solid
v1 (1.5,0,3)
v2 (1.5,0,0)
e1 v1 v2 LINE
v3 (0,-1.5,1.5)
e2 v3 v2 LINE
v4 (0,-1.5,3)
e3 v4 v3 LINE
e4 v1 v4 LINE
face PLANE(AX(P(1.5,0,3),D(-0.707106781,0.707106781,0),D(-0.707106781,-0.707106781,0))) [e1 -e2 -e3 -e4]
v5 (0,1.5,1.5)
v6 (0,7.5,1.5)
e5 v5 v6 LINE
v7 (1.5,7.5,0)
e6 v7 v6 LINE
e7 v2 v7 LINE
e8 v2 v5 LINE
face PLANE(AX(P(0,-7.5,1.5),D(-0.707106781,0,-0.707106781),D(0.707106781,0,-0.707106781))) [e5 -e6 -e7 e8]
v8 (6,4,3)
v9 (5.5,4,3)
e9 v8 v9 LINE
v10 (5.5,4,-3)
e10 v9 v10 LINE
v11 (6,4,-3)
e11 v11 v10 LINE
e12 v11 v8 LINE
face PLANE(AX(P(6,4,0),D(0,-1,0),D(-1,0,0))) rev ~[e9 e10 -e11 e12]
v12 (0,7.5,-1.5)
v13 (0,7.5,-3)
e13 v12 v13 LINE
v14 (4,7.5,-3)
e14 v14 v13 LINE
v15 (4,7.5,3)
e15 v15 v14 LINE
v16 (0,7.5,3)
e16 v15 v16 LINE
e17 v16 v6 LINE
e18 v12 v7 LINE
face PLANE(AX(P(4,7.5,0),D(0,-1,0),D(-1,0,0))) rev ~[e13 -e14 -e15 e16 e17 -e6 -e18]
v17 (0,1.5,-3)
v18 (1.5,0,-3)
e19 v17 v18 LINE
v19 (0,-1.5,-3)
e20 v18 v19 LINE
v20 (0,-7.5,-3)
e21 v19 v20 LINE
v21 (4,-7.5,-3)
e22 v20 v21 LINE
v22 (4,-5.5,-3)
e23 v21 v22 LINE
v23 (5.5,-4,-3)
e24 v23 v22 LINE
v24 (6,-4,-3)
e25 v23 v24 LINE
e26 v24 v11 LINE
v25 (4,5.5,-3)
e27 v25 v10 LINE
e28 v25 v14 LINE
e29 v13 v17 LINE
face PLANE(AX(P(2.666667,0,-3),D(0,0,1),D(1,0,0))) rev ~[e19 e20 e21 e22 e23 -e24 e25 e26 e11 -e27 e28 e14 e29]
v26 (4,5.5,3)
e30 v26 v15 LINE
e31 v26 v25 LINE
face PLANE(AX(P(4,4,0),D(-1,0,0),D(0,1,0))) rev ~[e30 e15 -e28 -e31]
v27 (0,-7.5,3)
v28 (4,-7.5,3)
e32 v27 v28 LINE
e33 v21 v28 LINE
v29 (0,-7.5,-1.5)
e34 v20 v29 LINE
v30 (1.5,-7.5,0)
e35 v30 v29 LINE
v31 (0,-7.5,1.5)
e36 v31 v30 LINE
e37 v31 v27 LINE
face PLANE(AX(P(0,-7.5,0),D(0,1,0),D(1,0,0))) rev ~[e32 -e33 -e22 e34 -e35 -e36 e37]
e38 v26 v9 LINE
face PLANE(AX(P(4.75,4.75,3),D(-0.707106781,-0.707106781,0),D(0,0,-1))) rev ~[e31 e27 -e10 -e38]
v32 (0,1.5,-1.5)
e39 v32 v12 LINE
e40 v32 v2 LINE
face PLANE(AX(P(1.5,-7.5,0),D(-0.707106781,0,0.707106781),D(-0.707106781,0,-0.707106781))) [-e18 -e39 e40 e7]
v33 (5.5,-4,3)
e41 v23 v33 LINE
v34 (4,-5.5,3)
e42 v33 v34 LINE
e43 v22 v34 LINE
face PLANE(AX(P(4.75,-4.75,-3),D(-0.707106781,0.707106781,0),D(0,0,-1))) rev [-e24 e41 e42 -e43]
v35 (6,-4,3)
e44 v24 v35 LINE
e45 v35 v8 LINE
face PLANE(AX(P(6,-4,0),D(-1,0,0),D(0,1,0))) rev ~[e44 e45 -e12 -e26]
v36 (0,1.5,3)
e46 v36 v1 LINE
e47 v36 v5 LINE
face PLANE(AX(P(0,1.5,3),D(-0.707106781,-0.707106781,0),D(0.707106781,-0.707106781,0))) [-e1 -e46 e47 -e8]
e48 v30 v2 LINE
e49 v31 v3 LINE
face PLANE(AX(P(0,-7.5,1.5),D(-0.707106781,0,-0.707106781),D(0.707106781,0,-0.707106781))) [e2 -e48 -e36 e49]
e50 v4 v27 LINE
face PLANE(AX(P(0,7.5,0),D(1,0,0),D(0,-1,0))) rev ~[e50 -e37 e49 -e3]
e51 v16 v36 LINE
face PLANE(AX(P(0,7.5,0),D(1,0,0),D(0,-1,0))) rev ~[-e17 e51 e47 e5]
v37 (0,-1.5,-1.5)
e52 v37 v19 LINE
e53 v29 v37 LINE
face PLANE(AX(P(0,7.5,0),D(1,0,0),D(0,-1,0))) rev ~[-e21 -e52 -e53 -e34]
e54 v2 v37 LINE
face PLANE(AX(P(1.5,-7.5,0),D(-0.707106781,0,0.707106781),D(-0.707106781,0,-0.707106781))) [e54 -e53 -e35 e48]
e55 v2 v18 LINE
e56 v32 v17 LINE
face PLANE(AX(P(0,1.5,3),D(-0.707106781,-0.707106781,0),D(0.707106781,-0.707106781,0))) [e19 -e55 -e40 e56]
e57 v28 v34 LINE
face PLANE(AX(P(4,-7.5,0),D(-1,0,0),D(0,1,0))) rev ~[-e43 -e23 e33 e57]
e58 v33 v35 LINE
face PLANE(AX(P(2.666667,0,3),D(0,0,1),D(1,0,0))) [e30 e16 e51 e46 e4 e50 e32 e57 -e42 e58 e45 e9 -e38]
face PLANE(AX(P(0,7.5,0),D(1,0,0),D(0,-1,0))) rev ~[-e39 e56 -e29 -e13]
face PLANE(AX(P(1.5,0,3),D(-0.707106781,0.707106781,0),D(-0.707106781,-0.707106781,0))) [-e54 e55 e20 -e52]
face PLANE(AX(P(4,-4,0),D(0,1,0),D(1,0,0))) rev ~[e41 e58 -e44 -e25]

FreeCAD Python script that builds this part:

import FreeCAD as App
import Part
import Sketcher
from FreeCAD import Vector


def edges_at(feature, points):
    """Names of the edges that pass closest to the given points."""
    edges = feature.Shape.Edges
    near = lambda p: min(range(len(edges)), key=lambda i: edges[i].distToShape(Part.Vertex(*p))[0])
    return sorted({f"Edge{near(p) + 1}" for p in points})

doc = App.newDocument("Part")
body = doc.addObject("PartDesign::Body", "Body")

# Sketch on XY plane
sketch1 = doc.addObject("Sketcher::SketchObject", "Sketch")
body.addObject(sketch1)
sketch1.AttachmentSupport = (doc.XY_Plane, [""])
sketch1.MapMode = "FlatFace"
sketch1.addGeometry(Part.LineSegment(Vector(4, 7.5, 0), Vector(0, 7.5, 0)), False)
sketch1.addGeometry(Part.LineSegment(Vector(0, 7.5, 0), Vector(0, -7.5, 0)), False)
sketch1.addGeometry(Part.LineSegment(Vector(0, -7.5, 0), Vector(4, -7.5, 0)), False)
sketch1.addGeometry(Part.LineSegment(Vector(4, -7.5, 0), Vector(4, -4, 0)), False)
sketch1.addGeometry(Part.LineSegment(Vector(4, -4, 0), Vector(6, -4, 0)), False)
sketch1.addGeometry(Part.LineSegment(Vector(6, -4, 0), Vector(6, 4, 0)), False)
sketch1.addGeometry(Part.LineSegment(Vector(6, 4, 0), Vector(4, 4, 0)), False)
sketch1.addGeometry(Part.LineSegment(Vector(4, 4, 0), Vector(4, 7.5, 0)), False)
sketch1.addConstraint(Sketcher.Constraint("Coincident", 0, 2, 1, 1))
sketch1.addConstraint(Sketcher.Constraint("Coincident", 1, 2, 2, 1))
sketch1.addConstraint(Sketcher.Constraint("Coincident", 2, 2, 3, 1))
sketch1.addConstraint(Sketcher.Constraint("Coincident", 3, 2, 4, 1))
sketch1.addConstraint(Sketcher.Constraint("Coincident", 4, 2, 5, 1))
sketch1.addConstraint(Sketcher.Constraint("Coincident", 5, 2, 6, 1))
sketch1.addConstraint(Sketcher.Constraint("Coincident", 6, 2, 7, 1))
sketch1.addConstraint(Sketcher.Constraint("Coincident", 7, 2, 0, 1))
sketch1.addConstraint(Sketcher.Constraint("Horizontal", 0))
sketch1.addConstraint(Sketcher.Constraint("Vertical", 1))
sketch1.addConstraint(Sketcher.Constraint("Horizontal", 2))
sketch1.addConstraint(Sketcher.Constraint("Vertical", 3))
sketch1.addConstraint(Sketcher.Constraint("Horizontal", 4))
sketch1.addConstraint(Sketcher.Constraint("Vertical", 5))
sketch1.addConstraint(Sketcher.Constraint("Horizontal", 6))
sketch1.addConstraint(Sketcher.Constraint("Vertical", 7))
sketch1.addConstraint(Sketcher.Constraint("Symmetric", 0, 2, 1, 2, -1, 1))
sketch1.addConstraint(Sketcher.Constraint("Symmetric", 3, 2, 6, 2, -1))
sketch1.addConstraint(Sketcher.Constraint("DistanceX", 0, 2, 0, 1, 4.0))
sketch1.addConstraint(Sketcher.Constraint("DistanceY", 3, 2, -1, 1, 4.0))
sketch1.addConstraint(Sketcher.Constraint("DistanceX", -1, 1, 4, 2, 6.0))
sketch1.addConstraint(Sketcher.Constraint("DistanceY", 1, 2, 1, 1, 15.0))
pad1 = doc.addObject("PartDesign::Pad", "Pad")
body.addObject(pad1)
pad1.Profile = sketch1
pad1.Length = 6
pad1.Midplane = True

# Sketch on XZ plane
sketch2 = doc.addObject("Sketcher::SketchObject", "Sketch001")
body.addObject(sketch2)
sketch2.AttachmentSupport = (doc.XZ_Plane, [""])
sketch2.MapMode = "FlatFace"
sketch2.AttachmentOffset = App.Placement(Vector(0, 0, 7.5), App.Rotation())
sketch2.addGeometry(Part.LineSegment(Vector(0, 1.5, 0), Vector(0, -1.5, 0)), False)
sketch2.addGeometry(Part.LineSegment(Vector(0, -1.5, 0), Vector(1.5, 0, 0)), False)
sketch2.addGeometry(Part.LineSegment(Vector(1.5, 0, 0), Vector(0, 1.5, 0)), False)
sketch2.addConstraint(Sketcher.Constraint("Coincident", 0, 2, 1, 1))
sketch2.addConstraint(Sketcher.Constraint("Coincident", 1, 2, 2, 1))
sketch2.addConstraint(Sketcher.Constraint("Coincident", 2, 2, 0, 1))
sketch2.addConstraint(Sketcher.Constraint("Vertical", 0))
sketch2.addConstraint(Sketcher.Constraint("Symmetric", 0, 2, 2, 2, -1, 1))
sketch2.addConstraint(Sketcher.Constraint("PointOnObject", 1, 2, -1))
sketch2.addConstraint(Sketcher.Constraint("Perpendicular", 1, 2))
sketch2.addConstraint(Sketcher.Constraint("DistanceY", 0, 2, 0, 1, 3.0))
pocket1 = doc.addObject("PartDesign::Pocket", "Pocket")
body.addObject(pocket1)
pocket1.Profile = sketch2
pocket1.Type = "UpToFirst"

# Sketch on XY plane
sketch3 = doc.addObject("Sketcher::SketchObject", "Sketch002")
body.addObject(sketch3)
sketch3.AttachmentSupport = (doc.XY_Plane, [""])
sketch3.MapMode = "FlatFace"
sketch3.AttachmentOffset = App.Placement(Vector(0, 0, 3), App.Rotation())
sketch3.addGeometry(Part.LineSegment(Vector(1.5, 0, 0), Vector(0, 1.5, 0)), False)
sketch3.addGeometry(Part.LineSegment(Vector(0, 1.5, 0), Vector(0, -1.5, 0)), False)
sketch3.addGeometry(Part.LineSegment(Vector(0, -1.5, 0), Vector(1.5, 0, 0)), False)
sketch3.addConstraint(Sketcher.Constraint("Coincident", 0, 2, 1, 1))
sketch3.addConstraint(Sketcher.Constraint("Coincident", 1, 2, 2, 1))
sketch3.addConstraint(Sketcher.Constraint("Coincident", 2, 2, 0, 1))
sketch3.addConstraint(Sketcher.Constraint("Vertical", 1))
sketch3.addConstraint(Sketcher.Constraint("Symmetric", 0, 2, 1, 2, -1, 1))
sketch3.addConstraint(Sketcher.Constraint("PointOnObject", 2, 2, -1))
sketch3.addConstraint(Sketcher.Constraint("Perpendicular", 0, 2))
sketch3.addConstraint(Sketcher.Constraint("DistanceY", 1, 2, 1, 1, 3.0))
pocket2 = doc.addObject("PartDesign::Pocket", "Pocket001")
body.addObject(pocket2)
pocket2.Profile = sketch3
pocket2.Type = "ThroughAll"
doc.recompute()

chamfer = doc.addObject("PartDesign::Chamfer", "Chamfer")
body.addObject(chamfer)
chamfer.Base = (pocket2, edges_at(pocket2, [(4, -4, 0), (4, 4, 0)]))
chamfer.Size = 1.5

doc.recompute()
